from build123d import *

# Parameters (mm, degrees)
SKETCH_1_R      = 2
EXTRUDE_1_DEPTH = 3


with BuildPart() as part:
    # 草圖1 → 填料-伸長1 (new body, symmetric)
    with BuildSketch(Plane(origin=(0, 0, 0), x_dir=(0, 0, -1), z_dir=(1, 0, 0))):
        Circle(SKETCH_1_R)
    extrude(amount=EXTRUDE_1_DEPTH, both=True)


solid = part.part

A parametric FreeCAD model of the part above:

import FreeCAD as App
import Part
import Sketcher
from FreeCAD import Vector
Q = App.Units.Quantity

doc = App.newDocument("Part")
body = doc.addObject("PartDesign::Body", "Body")

# Sketch on YZ plane
sketch1 = body.newObject("Sketcher::SketchObject", "Sketch")
sketch1.AttachmentSupport = (doc.getObject("YZ_Plane"), [""])
sketch1.MapMode = "FlatFace"
sketch1.addGeometry(Part.Circle(Vector(0, 0, 0), Vector(0, 0, 1), 2), False)
sketch1.addConstraint([
    Sketcher.Constraint("Coincident", 0, 3, -1, 1),
    Sketcher.Constraint("Diameter", 0, Q("4 mm")),
])
pad1 = body.newObject("PartDesign::Pad", "Pad")
pad1.Profile = sketch1
pad1.Length = 6
pad1.Midplane = True

doc.recompute()
